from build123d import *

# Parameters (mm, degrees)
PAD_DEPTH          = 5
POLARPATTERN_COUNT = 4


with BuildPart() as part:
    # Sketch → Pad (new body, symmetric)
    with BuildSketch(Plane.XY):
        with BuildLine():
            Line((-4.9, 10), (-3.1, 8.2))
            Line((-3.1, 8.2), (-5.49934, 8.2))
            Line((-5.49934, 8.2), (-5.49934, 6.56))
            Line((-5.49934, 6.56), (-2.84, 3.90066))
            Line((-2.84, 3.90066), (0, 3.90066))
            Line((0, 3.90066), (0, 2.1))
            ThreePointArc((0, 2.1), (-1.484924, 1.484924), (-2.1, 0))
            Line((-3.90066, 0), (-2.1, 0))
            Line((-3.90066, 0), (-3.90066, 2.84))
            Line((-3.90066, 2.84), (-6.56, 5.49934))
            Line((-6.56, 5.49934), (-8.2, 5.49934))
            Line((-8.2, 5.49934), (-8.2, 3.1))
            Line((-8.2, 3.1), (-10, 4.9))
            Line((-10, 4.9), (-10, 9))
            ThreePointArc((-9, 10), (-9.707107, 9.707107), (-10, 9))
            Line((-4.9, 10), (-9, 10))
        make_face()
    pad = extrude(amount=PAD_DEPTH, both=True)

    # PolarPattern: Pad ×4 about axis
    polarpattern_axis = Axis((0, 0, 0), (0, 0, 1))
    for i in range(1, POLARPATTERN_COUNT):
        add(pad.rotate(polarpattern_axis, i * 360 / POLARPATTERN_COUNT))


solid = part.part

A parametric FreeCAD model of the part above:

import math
import FreeCAD as App
import Part
import Sketcher

V = App.Vector
Q = App.Units.Quantity

doc = App.newDocument("Part")
params = doc.addObject("Spreadsheet::Sheet", "Params")
for row, (alias, value) in enumerate([
    ("sketch1_radius", "0.999999 mm"),
    ("sketch1_radius2", "2.100001 mm"),
    ("sketch1_width", "4.1 mm"),
    ("sketch1_width2", "1.64 mm"),
    ("sketch1_width3", "2.84 mm"),
    ("pad1_length", "10 mm"),
], start=1):
    params.set(f"A{row}", alias)
    params.set(f"B{row}", "=" + value)
    params.setAlias(f"B{row}", alias)

body = doc.addObject("PartDesign::Body", "Body")

sketch1 = body.newObject("Sketcher::SketchObject", "Sketch")
sketch1.AttachmentSupport = (doc.getObject("XY_Plane"), [""])
sketch1.MapMode = "FlatFace"
sketch1.addGeometry(Part.LineSegment(V(-3.1, 8.2, 0), V(-4.9, 10, 0)), False)
sketch1.addGeometry(Part.LineSegment(V(-4.9, 10, 0), V(-9, 10, 0)), False)
sketch1.addGeometry(Part.ArcOfCircle(Part.Circle(V(-9.000001, 9.000001, 0), V(0, 0, 1), 0.999999), math.radians(89.999957), math.radians(180.000043)), False)
sketch1.addGeometry(Part.LineSegment(V(-10, 9, 0), V(-10, 4.9, 0)), False)
sketch1.addGeometry(Part.LineSegment(V(-10, 4.9, 0), V(-8.2, 3.1, 0)), False)
sketch1.addGeometry(Part.LineSegment(V(-8.2, 3.1, 0), V(-8.2, 5.49934, 0)), False)
sketch1.addGeometry(Part.LineSegment(V(-8.2, 5.49934, 0), V(-6.56, 5.49934, 0)), False)
sketch1.addGeometry(Part.LineSegment(V(-6.56, 5.49934, 0), V(-3.90066, 2.84, 0)), False)
sketch1.addGeometry(Part.LineSegment(V(-3.90066, 2.84, 0), V(-3.90066, 0, 0)), False)
sketch1.addGeometry(Part.LineSegment(V(-3.90066, 0, 0), V(-2.1, 0, 0)), False)
sketch1.addGeometry(Part.ArcOfCircle(Part.Circle(V(0.000001, -0.000001, 0), V(0, 0, 1), 2.100001), math.radians(90.000022), math.radians(179.999978)), False)
sketch1.addGeometry(Part.LineSegment(V(0, 2.1, 0), V(0, 3.90066, 0)), False)
sketch1.addGeometry(Part.LineSegment(V(0, 3.90066, 0), V(-2.84, 3.90066, 0)), False)
sketch1.addGeometry(Part.LineSegment(V(-2.84, 3.90066, 0), V(-5.49934, 6.56, 0)), False)
sketch1.addGeometry(Part.LineSegment(V(-5.49934, 6.56, 0), V(-5.49934, 8.2, 0)), False)
sketch1.addGeometry(Part.LineSegment(V(-5.49934, 8.2, 0), V(-3.1, 8.2, 0)), False)
sketch1.addConstraint(Sketcher.Constraint("Coincident", 0, 2, 1, 1))
sketch1.addConstraint(Sketcher.Constraint("Tangent", 1, 2, 2, 1))
sketch1.addConstraint(Sketcher.Constraint("Tangent", 2, 2, 3, 1))
sketch1.addConstraint(Sketcher.Constraint("Coincident", 3, 2, 4, 1))
sketch1.addConstraint(Sketcher.Constraint("Coincident", 4, 2, 5, 1))
sketch1.addConstraint(Sketcher.Constraint("Coincident", 5, 2, 6, 1))
sketch1.addConstraint(Sketcher.Constraint("Coincident", 6, 2, 7, 1))
sketch1.addConstraint(Sketcher.Constraint("Coincident", 7, 2, 8, 1))
sketch1.addConstraint(Sketcher.Constraint("Coincident", 8, 2, 9, 1))
sketch1.addConstraint(Sketcher.Constraint("Coincident", 9, 2, 10, 2))
sketch1.addConstraint(Sketcher.Constraint("Coincident", 10, 1, 11, 1))
sketch1.addConstraint(Sketcher.Constraint("Coincident", 11, 2, 12, 1))
sketch1.addConstraint(Sketcher.Constraint("Coincident", 12, 2, 13, 1))
sketch1.addConstraint(Sketcher.Constraint("Coincident", 13, 2, 14, 1))
sketch1.addConstraint(Sketcher.Constraint("Coincident", 14, 2, 15, 1))
sketch1.addConstraint(Sketcher.Constraint("Coincident", 15, 2, 0, 1))
sketch1.addConstraint(Sketcher.Constraint("Horizontal", 1))
sketch1.addConstraint(Sketcher.Constraint("Vertical", 3))
sketch1.addConstraint(Sketcher.Constraint("Vertical", 5))
sketch1.addConstraint(Sketcher.Constraint("Horizontal", 6))
sketch1.addConstraint(Sketcher.Constraint("Vertical", 8))
sketch1.addConstraint(Sketcher.Constraint("Horizontal", 9))
sketch1.addConstraint(Sketcher.Constraint("Vertical", 11))
sketch1.addConstraint(Sketcher.Constraint("Horizontal", 12))
sketch1.addConstraint(Sketcher.Constraint("Vertical", 14))
sketch1.addConstraint(Sketcher.Constraint("Horizontal", 15))
sketch1.addConstraint(Sketcher.Constraint("Coincident", 10, 3, -1, 1))
sketch1.addConstraint(Sketcher.Constraint("PointOnObject", 8, 2, -1))
sketch1.addConstraint(Sketcher.Constraint("PointOnObject", 10, 1, -2))
sketch1.addConstraint(Sketcher.Constraint("Parallel", 0, 4))
sketch1.addConstraint(Sketcher.Constraint("Parallel", 4, 7))
sketch1.addConstraint(Sketcher.Constraint("Parallel", 7, 13))
sketch1.addConstraint(Sketcher.Constraint("Equal", 1, 3))
sketch1.addConstraint(Sketcher.Constraint("Equal", 15, 5))
sketch1.addConstraint(Sketcher.Constraint("Equal", 12, 8))
sketch1.addConstraint(Sketcher.Constraint("Equal", 9, 11))
sketch1.addConstraint(Sketcher.Constraint("Equal", 6, 14))
sketch1.addConstraint(Sketcher.Constraint("Equal", 0, 4))
sketch1.addConstraint(Sketcher.Constraint("Radius", 2, 0.999999))
sketch1.addConstraint(Sketcher.Constraint("Radius", 10, 2.100001))
sketch1.addConstraint(Sketcher.Constraint("Angle", 0, Q("135 deg")))
sketch1.addConstraint(Sketcher.Constraint("DistanceX", 1, 2, 1, 1, 4.1))
sketch1.addConstraint(Sketcher.Constraint("DistanceX", 2, 3, -1, 1, 9.000001))
sketch1.addConstraint(Sketcher.Constraint("DistanceX", 6, 1, 6, 2, 1.64))
sketch1.addConstraint(Sketcher.Constraint("DistanceX", 12, 2, 12, 1, 2.84))
sketch1.addConstraint(Sketcher.Constraint("DistanceX", 4, 2, -1, 1, 8.2))
sketch1.addConstraint(Sketcher.Constraint("DistanceX", 9, 1, 9, 2, 1.80066))
sketch1.setExpression("Constraints[38]", "Params.sketch1_radius")
sketch1.setExpression("Constraints[39]", "Params.sketch1_radius2")
sketch1.setExpression("Constraints[41]", "Params.sketch1_width")
sketch1.setExpression("Constraints[43]", "Params.sketch1_width2")
sketch1.setExpression("Constraints[44]", "Params.sketch1_width3")
pad1 = body.newObject("PartDesign::Pad", "Pad")
pad1.Profile = sketch1
pad1.setExpression("Length", "Params.pad1_length")
pad1.Midplane = True
doc.recompute()

polarpattern = body.newObject("PartDesign::PolarPattern", "PolarPattern")
polarpattern.Originals = [pad1]
polarpattern.Axis = (doc.getObject("Z_Axis"), [""])
polarpattern.Angle = 360
polarpattern.Occurrences = 4
body.Tip = polarpattern

doc.recompute()
